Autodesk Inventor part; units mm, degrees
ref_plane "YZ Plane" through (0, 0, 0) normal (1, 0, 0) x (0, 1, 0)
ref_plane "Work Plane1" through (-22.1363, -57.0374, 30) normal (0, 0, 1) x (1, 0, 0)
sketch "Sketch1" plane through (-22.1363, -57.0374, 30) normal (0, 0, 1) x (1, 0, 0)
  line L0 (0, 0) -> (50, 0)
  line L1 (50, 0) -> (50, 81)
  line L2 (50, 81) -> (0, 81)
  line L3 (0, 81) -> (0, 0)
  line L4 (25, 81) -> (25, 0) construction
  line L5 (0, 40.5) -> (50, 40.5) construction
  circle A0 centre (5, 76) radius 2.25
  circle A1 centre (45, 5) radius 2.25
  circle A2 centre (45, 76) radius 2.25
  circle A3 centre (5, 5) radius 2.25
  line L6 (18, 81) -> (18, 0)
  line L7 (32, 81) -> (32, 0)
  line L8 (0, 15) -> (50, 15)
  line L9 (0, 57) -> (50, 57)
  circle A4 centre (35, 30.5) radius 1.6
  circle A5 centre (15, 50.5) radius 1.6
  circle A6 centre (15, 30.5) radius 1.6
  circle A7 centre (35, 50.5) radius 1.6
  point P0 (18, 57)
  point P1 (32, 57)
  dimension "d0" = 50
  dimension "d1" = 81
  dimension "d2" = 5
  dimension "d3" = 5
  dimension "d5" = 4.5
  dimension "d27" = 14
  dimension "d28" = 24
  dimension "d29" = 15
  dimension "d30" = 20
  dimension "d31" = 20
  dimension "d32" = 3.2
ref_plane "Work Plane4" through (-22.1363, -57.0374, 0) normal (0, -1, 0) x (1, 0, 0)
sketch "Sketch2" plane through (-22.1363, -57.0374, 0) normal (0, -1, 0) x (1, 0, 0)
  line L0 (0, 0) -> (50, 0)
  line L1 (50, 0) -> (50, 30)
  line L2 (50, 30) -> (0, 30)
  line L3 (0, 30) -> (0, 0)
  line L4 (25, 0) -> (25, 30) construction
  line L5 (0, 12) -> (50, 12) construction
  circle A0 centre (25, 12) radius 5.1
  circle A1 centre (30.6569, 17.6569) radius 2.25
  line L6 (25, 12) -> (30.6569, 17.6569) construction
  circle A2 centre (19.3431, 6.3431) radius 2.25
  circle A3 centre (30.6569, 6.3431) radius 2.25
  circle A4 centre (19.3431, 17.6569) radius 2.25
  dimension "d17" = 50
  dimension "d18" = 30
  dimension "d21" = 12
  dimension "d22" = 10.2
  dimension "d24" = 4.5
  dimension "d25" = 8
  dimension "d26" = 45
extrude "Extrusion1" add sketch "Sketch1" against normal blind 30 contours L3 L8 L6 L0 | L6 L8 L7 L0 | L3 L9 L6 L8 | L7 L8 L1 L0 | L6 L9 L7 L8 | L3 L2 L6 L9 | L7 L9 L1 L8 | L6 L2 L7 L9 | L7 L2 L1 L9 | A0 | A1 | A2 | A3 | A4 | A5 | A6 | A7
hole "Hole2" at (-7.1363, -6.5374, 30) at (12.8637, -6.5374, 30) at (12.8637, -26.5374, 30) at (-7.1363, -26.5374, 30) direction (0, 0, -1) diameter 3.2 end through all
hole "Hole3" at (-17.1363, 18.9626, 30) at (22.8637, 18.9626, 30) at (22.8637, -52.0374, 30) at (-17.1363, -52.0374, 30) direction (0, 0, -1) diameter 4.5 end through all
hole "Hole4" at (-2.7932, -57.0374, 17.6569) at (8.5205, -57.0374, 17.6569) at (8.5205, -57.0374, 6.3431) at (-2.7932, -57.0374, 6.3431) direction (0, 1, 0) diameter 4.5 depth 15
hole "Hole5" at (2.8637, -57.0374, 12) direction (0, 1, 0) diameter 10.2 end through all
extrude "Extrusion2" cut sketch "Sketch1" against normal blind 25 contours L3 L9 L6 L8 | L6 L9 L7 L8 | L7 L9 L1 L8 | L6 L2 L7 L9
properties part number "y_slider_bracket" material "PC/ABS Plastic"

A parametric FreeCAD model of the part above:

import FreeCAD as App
import Part
import Sketcher

V = App.Vector


def add_polygon(sketch, points):
    """Adds a closed chain of lines whose ends are joined by coincident constraints."""
    first, n = sketch.GeometryCount, len(points)
    for a, b in zip(points, points[1:] + points[:1]):
        sketch.addGeometry(Part.LineSegment(App.Vector(*a, 0), App.Vector(*b, 0)), False)
    for i in range(n):
        sketch.addConstraint(Sketcher.Constraint("Coincident", first + i, 2, first + (i + 1) % n, 1))

doc = App.newDocument("Part")
params = doc.addObject("Spreadsheet::Sheet", "Params")
for row, (alias, value) in enumerate([
    ("sketch1_width", "50 mm"),
    ("sketch1_height", "81 mm"),
    ("pad1_length", "30 mm"),
    ("sketch2_diameter", "3.2 mm"),
    ("hole_diameter", "3.2 mm"),
    ("sketch3_diameter", "4.5 mm"),
    ("hole2_diameter", "4.5 mm"),
    ("sketch4_diameter", "4.5 mm"),
    ("hole3_diameter", "4.5 mm"),
    ("hole3_depth", "15 mm"),
    ("sketch5_diameter", "10.2 mm"),
    ("hole4_diameter", "10.2 mm"),
    ("sketch6_diameter", "3.2 mm"),
    ("sketch6_width", "50 mm"),
    ("sketch6_width2", "14 mm"),
    ("sketch6_height", "24 mm"),
    ("sketch6_height2", "42 mm"),
    ("pocket1_length", "25 mm"),
], start=1):
    params.set(f"A{row}", alias)
    params.set(f"B{row}", "=" + value)
    params.setAlias(f"B{row}", alias)

body = doc.addObject("PartDesign::Body", "Body")

# Sketch on XY plane
sketch1 = body.newObject("Sketcher::SketchObject", "Sketch")
sketch1.AttachmentSupport = (doc.getObject("XY_Plane"), [""])
sketch1.MapMode = "FlatFace"
sketch1.AttachmentOffset = App.Placement(V(0, 0, 30), App.Rotation())
add_polygon(sketch1, [(-22, -57), (28, -57), (28, 24), (-22, 24)])  # lines 0-3
sketch1.addConstraint(Sketcher.Constraint("Horizontal", 0))
sketch1.addConstraint(Sketcher.Constraint("Vertical", 1))
sketch1.addConstraint(Sketcher.Constraint("Horizontal", 2))
sketch1.addConstraint(Sketcher.Constraint("Vertical", 3))
sketch1.addConstraint(Sketcher.Constraint("DistanceX", 0, 1, 0, 2, 50.0))
sketch1.addConstraint(Sketcher.Constraint("DistanceY", 1, 1, 1, 2, 81.0))
sketch1.addConstraint(Sketcher.Constraint("DistanceX", -1, 1, 0, 2, 27.8637))
sketch1.addConstraint(Sketcher.Constraint("DistanceY", 0, 2, -1, 1, 57.0374))
sketch1.setExpression("Constraints[8]", "Params.sketch1_width")
sketch1.setExpression("Constraints[9]", "Params.sketch1_height")
pad1 = body.newObject("PartDesign::Pad", "Pad")
pad1.Profile = sketch1
pad1.setExpression("Length", "Params.pad1_length")
pad1.Reversed = True

# Sketch on XY plane
sketch2 = body.newObject("Sketcher::SketchObject", "Sketch001")
sketch2.AttachmentSupport = (doc.getObject("XY_Plane"), [""])
sketch2.MapMode = "FlatFace"
sketch2.AttachmentOffset = App.Placement(V(0, 0, 30), App.Rotation())
sketch2.addGeometry(Part.Circle(V(-7.1, -6.5, 0), V(0, 0, 1), 1.6), False)
sketch2.addGeometry(Part.Circle(V(12.9, -6.5, 0), V(0, 0, 1), 1.6), False)
sketch2.addGeometry(Part.Circle(V(12.9, -26.5, 0), V(0, 0, 1), 1.6), False)
sketch2.addGeometry(Part.Circle(V(-7.1, -26.5, 0), V(0, 0, 1), 1.6), False)
sketch2.addConstraint(Sketcher.Constraint("Equal", 0, 1))
sketch2.addConstraint(Sketcher.Constraint("Equal", 1, 2))
sketch2.addConstraint(Sketcher.Constraint("Equal", 2, 3))
sketch2.addConstraint(Sketcher.Constraint("Horizontal", 0, 3, 1, 3))
sketch2.addConstraint(Sketcher.Constraint("Horizontal", 2, 3, 3, 3))
sketch2.addConstraint(Sketcher.Constraint("Vertical", 1, 3, 2, 3))
sketch2.addConstraint(Sketcher.Constraint("Vertical", 0, 3, 3, 3))
sketch2.addConstraint(Sketcher.Constraint("Diameter", 0, 3.2))
sketch2.addConstraint(Sketcher.Constraint("DistanceX", 0, 3, 1, 3, 20.0))
sketch2.addConstraint(Sketcher.Constraint("DistanceY", 2, 3, 1, 3, 20.0))
sketch2.addConstraint(Sketcher.Constraint("DistanceX", 0, 3, -1, 1, 7.1363))
sketch2.addConstraint(Sketcher.Constraint("DistanceY", 0, 3, -1, 1, 6.5374))
sketch2.setExpression("Constraints[7]", "Params.sketch2_diameter")
doc.recompute()
hole = body.newObject("PartDesign::Hole", "Hole")
hole.Profile = sketch2
hole.ThreadType = "None"
hole.setExpression("Diameter", "Params.hole_diameter")
hole.DepthType = "ThroughAll"

# Sketch on XY plane
sketch3 = body.newObject("Sketcher::SketchObject", "Sketch002")
sketch3.AttachmentSupport = (doc.getObject("XY_Plane"), [""])
sketch3.MapMode = "FlatFace"
sketch3.AttachmentOffset = App.Placement(V(0, 0, 30), App.Rotation())
sketch3.addGeometry(Part.Circle(V(-17.1, 19, 0), V(0, 0, 1), 2.2), False)
sketch3.addGeometry(Part.Circle(V(22.9, 19, 0), V(0, 0, 1), 2.2), False)
sketch3.addGeometry(Part.Circle(V(22.9, -52, 0), V(0, 0, 1), 2.2), False)
sketch3.addGeometry(Part.Circle(V(-17.1, -52, 0), V(0, 0, 1), 2.2), False)
sketch3.addConstraint(Sketcher.Constraint("Equal", 0, 1))
sketch3.addConstraint(Sketcher.Constraint("Equal", 1, 2))
sketch3.addConstraint(Sketcher.Constraint("Equal", 2, 3))
sketch3.addConstraint(Sketcher.Constraint("Horizontal", 0, 3, 1, 3))
sketch3.addConstraint(Sketcher.Constraint("Horizontal", 2, 3, 3, 3))
sketch3.addConstraint(Sketcher.Constraint("Vertical", 1, 3, 2, 3))
sketch3.addConstraint(Sketcher.Constraint("Vertical", 0, 3, 3, 3))
sketch3.addConstraint(Sketcher.Constraint("Diameter", 0, 4.5))
sketch3.addConstraint(Sketcher.Constraint("DistanceX", 0, 3, 1, 3, 40.0))
sketch3.addConstraint(Sketcher.Constraint("DistanceY", 2, 3, 1, 3, 71.0))
sketch3.addConstraint(Sketcher.Constraint("DistanceX", 0, 3, -1, 1, 17.1363))
sketch3.addConstraint(Sketcher.Constraint("DistanceY", -1, 1, 0, 3, 18.9626))
sketch3.setExpression("Constraints[7]", "Params.sketch3_diameter")
doc.recompute()
hole2 = body.newObject("PartDesign::Hole", "Hole001")
hole2.Profile = sketch3
hole2.ThreadType = "None"
hole2.setExpression("Diameter", "Params.hole2_diameter")
hole2.DepthType = "ThroughAll"

# Sketch on XZ plane
sketch4 = body.newObject("Sketcher::SketchObject", "Sketch003")
sketch4.AttachmentSupport = (doc.getObject("XZ_Plane"), [""])
sketch4.MapMode = "FlatFace"
sketch4.AttachmentOffset = App.Placement(V(0, 0, 57.0374), App.Rotation())
sketch4.addGeometry(Part.Circle(V(-2.8, 17.7, 0), V(0, 0, 1), 2.2), False)
sketch4.addGeometry(Part.Circle(V(8.5, 17.7, 0), V(0, 0, 1), 2.2), False)
sketch4.addGeometry(Part.Circle(V(8.5, 6.3, 0), V(0, 0, 1), 2.2), False)
sketch4.addGeometry(Part.Circle(V(-2.8, 6.3, 0), V(0, 0, 1), 2.2), False)
sketch4.addConstraint(Sketcher.Constraint("Equal", 0, 1))
sketch4.addConstraint(Sketcher.Constraint("Equal", 1, 2))
sketch4.addConstraint(Sketcher.Constraint("Equal", 2, 3))
sketch4.addConstraint(Sketcher.Constraint("Horizontal", 0, 3, 1, 3))
sketch4.addConstraint(Sketcher.Constraint("Horizontal", 2, 3, 3, 3))
sketch4.addConstraint(Sketcher.Constraint("Vertical", 1, 3, 2, 3))
sketch4.addConstraint(Sketcher.Constraint("Vertical", 0, 3, 3, 3))
sketch4.addConstraint(Sketcher.Constraint("Diameter", 0, 4.5))
sketch4.addConstraint(Sketcher.Constraint("DistanceY", -1, 1, 0, 3, 17.657))
sketch4.addConstraint(Sketcher.Constraint("DistanceY", -1, 1, 2, 3, 6.343))
sketch4.addConstraint(Sketcher.Constraint("DistanceX", 0, 3, -1, 1, 2.7932))
sketch4.addConstraint(Sketcher.Constraint("DistanceX", -1, 1, 1, 3, 8.5205))
sketch4.setExpression("Constraints[7]", "Params.sketch4_diameter")
doc.recompute()
hole3 = body.newObject("PartDesign::Hole", "Hole002")
hole3.Profile = sketch4
hole3.ThreadType = "None"
hole3.setExpression("Diameter", "Params.hole3_diameter")
hole3.DepthType = "Dimension"
hole3.setExpression("Depth", "Params.hole3_depth")
hole3.DrillPoint = "Flat"

# Sketch on XZ plane
sketch5 = body.newObject("Sketcher::SketchObject", "Sketch004")
sketch5.AttachmentSupport = (doc.getObject("XZ_Plane"), [""])
sketch5.MapMode = "FlatFace"
sketch5.AttachmentOffset = App.Placement(V(0, 0, 57.0374), App.Rotation())
sketch5.addGeometry(Part.Circle(V(3, 12, 0), V(0, 0, 1), 5), False)
sketch5.addConstraint(Sketcher.Constraint("Diameter", 0, 10.2))
sketch5.addConstraint(Sketcher.Constraint("DistanceY", -1, 1, 0, 3, 12.0))
sketch5.addConstraint(Sketcher.Constraint("DistanceX", -1, 1, 0, 3, 2.8637))
sketch5.setExpression("Constraints[0]", "Params.sketch5_diameter")
doc.recompute()
hole4 = body.newObject("PartDesign::Hole", "Hole003")
hole4.Profile = sketch5
hole4.ThreadType = "None"
hole4.setExpression("Diameter", "Params.hole4_diameter")
hole4.DepthType = "ThroughAll"

# Sketch on XY plane
sketch6 = body.newObject("Sketcher::SketchObject", "Sketch005")
sketch6.AttachmentSupport = (doc.getObject("XY_Plane"), [""])
sketch6.MapMode = "FlatFace"
sketch6.AttachmentOffset = App.Placement(V(0, 0, 30), App.Rotation())
add_polygon(sketch6, [(-22.1, 0), (-22.1, -42), (27.9, -42), (27.9, 0), (9.9, 0), (9.9, 24), (-4.1, 24), (-4.1, 0)])  # lines 0-7
sketch6.addGeometry(Part.Circle(V(-7.1, -26.5, 0), V(0, 0, 1), 1.6), False)  # 8
sketch6.addGeometry(Part.Circle(V(-7.1, -6.5, 0), V(0, 0, 1), 1.6), False)  # 9
sketch6.addGeometry(Part.Circle(V(12.9, -6.5, 0), V(0, 0, 1), 1.6), False)  # 10
sketch6.addGeometry(Part.Circle(V(12.9, -26.5, 0), V(0, 0, 1), 1.6), False)  # 11
sketch6.addConstraint(Sketcher.Constraint("Vertical", 0))
sketch6.addConstraint(Sketcher.Constraint("Horizontal", 1))
sketch6.addConstraint(Sketcher.Constraint("Vertical", 2))
sketch6.addConstraint(Sketcher.Constraint("Horizontal", 3))
sketch6.addConstraint(Sketcher.Constraint("Vertical", 4))
sketch6.addConstraint(Sketcher.Constraint("Horizontal", 5))
sketch6.addConstraint(Sketcher.Constraint("Vertical", 6))
sketch6.addConstraint(Sketcher.Constraint("Horizontal", 7))
sketch6.addConstraint(Sketcher.Constraint("Equal", 8, 9))
sketch6.addConstraint(Sketcher.Constraint("Equal", 9, 10))
sketch6.addConstraint(Sketcher.Constraint("Equal", 10, 11))
sketch6.addConstraint(Sketcher.Constraint("Horizontal", 9, 3, 10, 3))
sketch6.addConstraint(Sketcher.Constraint("Horizontal", 8, 3, 11, 3))
sketch6.addConstraint(Sketcher.Constraint("Horizontal", 3, 2, 6, 2))
sketch6.addConstraint(Sketcher.Constraint("Vertical", 8, 3, 9, 3))
sketch6.addConstraint(Sketcher.Constraint("Vertical", 10, 3, 11, 3))
sketch6.addConstraint(Sketcher.Constraint("Equal", 3, 7))
sketch6.addConstraint(Sketcher.Constraint("Diameter", 8, 3.2))
sketch6.addConstraint(Sketcher.Constraint("DistanceX", 1, 1, 1, 2, 50.0))
sketch6.addConstraint(Sketcher.Constraint("DistanceX", 5, 2, 5, 1, 14.0))
sketch6.addConstraint(Sketcher.Constraint("DistanceY", 4, 1, 4, 2, 24.0))
sketch6.addConstraint(Sketcher.Constraint("DistanceY", 8, 3, 9, 3, 20.0))
sketch6.addConstraint(Sketcher.Constraint("DistanceX", 9, 3, 10, 3, 20.0))
sketch6.addConstraint(Sketcher.Constraint("DistanceX", 0, 2, 8, 3, 15.0))
sketch6.addConstraint(Sketcher.Constraint("DistanceY", 0, 2, 0, 1, 42.0))
sketch6.addConstraint(Sketcher.Constraint("DistanceY", 0, 2, 8, 3, 15.5))
sketch6.addConstraint(Sketcher.Constraint("DistanceX", 8, 3, -1, 1, 7.1363))
sketch6.addConstraint(Sketcher.Constraint("DistanceY", 8, 3, -1, 1, 26.5374))
sketch6.setExpression("Constraints[25]", "Params.sketch6_diameter")
sketch6.setExpression("Constraints[26]", "Params.sketch6_width")
sketch6.setExpression("Constraints[27]", "Params.sketch6_width2")
sketch6.setExpression("Constraints[28]", "Params.sketch6_height")
sketch6.setExpression("Constraints[32]", "Params.sketch6_height2")
pocket1 = body.newObject("PartDesign::Pocket", "Pocket")
pocket1.Profile = sketch6
pocket1.setExpression("Length", "Params.pocket1_length")

doc.recompute()
